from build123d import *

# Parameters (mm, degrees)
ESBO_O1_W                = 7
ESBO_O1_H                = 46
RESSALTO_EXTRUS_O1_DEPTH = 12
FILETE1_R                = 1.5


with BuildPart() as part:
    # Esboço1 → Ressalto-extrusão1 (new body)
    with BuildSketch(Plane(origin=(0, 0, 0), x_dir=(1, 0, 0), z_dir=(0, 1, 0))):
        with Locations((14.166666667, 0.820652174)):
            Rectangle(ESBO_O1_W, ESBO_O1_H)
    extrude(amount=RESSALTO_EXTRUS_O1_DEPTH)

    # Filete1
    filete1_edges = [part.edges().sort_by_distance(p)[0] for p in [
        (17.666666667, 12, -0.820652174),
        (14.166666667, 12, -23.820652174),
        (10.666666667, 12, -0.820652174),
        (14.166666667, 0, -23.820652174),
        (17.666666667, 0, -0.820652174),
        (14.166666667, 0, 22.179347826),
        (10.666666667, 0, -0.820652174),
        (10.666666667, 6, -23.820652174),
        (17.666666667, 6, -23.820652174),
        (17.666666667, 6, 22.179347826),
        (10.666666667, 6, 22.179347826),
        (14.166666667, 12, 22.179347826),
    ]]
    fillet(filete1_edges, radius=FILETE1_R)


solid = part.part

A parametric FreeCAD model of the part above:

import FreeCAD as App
import Part
import Sketcher
from FreeCAD import Vector

doc = App.newDocument("Part")
body = doc.addObject("PartDesign::Body", "Body")

# Sketch on XZ plane
sketch1 = body.newObject("Sketcher::SketchObject", "Sketch")
sketch1.AttachmentSupport = (doc.getObject("XZ_Plane"), [""])
sketch1.MapMode = "FlatFace"
sketch1.addGeometry(Part.LineSegment(Vector(11, -24, 0), Vector(11, 22, 0)), False)
sketch1.addGeometry(Part.LineSegment(Vector(11, 22, 0), Vector(18, 22, 0)), False)
sketch1.addGeometry(Part.LineSegment(Vector(18, 22, 0), Vector(18, -24, 0)), False)
sketch1.addGeometry(Part.LineSegment(Vector(18, -24, 0), Vector(11, -24, 0)), False)
sketch1.addConstraint(Sketcher.Constraint("Coincident", 0, 2, 1, 1))
sketch1.addConstraint(Sketcher.Constraint("Coincident", 1, 2, 2, 1))
sketch1.addConstraint(Sketcher.Constraint("Coincident", 2, 2, 3, 1))
sketch1.addConstraint(Sketcher.Constraint("Coincident", 3, 2, 0, 1))
sketch1.addConstraint(Sketcher.Constraint("Vertical", 0))
sketch1.addConstraint(Sketcher.Constraint("Horizontal", 1))
sketch1.addConstraint(Sketcher.Constraint("Vertical", 2))
sketch1.addConstraint(Sketcher.Constraint("Horizontal", 3))
sketch1.addConstraint(Sketcher.Constraint("DistanceX", 1, 1, 1, 2, 7.0))
sketch1.addConstraint(Sketcher.Constraint("DistanceY", 0, 1, 0, 2, 46.0))
sketch1.addConstraint(Sketcher.Constraint("DistanceX", -1, 1, 0, 2, 10.666667))
sketch1.addConstraint(Sketcher.Constraint("DistanceY", -1, 1, 0, 2, 22.179348))
pad1 = body.newObject("PartDesign::Pad", "Pad")
pad1.Profile = sketch1
pad1.Length = 12
pad1.Reversed = True
doc.recompute()

fillet = body.newObject("PartDesign::Fillet", "Fillet")
fillet.Base = (pad1, ["Edge1"])
fillet.UseAllEdges = True
fillet.Radius = 1.5

doc.recompute()
